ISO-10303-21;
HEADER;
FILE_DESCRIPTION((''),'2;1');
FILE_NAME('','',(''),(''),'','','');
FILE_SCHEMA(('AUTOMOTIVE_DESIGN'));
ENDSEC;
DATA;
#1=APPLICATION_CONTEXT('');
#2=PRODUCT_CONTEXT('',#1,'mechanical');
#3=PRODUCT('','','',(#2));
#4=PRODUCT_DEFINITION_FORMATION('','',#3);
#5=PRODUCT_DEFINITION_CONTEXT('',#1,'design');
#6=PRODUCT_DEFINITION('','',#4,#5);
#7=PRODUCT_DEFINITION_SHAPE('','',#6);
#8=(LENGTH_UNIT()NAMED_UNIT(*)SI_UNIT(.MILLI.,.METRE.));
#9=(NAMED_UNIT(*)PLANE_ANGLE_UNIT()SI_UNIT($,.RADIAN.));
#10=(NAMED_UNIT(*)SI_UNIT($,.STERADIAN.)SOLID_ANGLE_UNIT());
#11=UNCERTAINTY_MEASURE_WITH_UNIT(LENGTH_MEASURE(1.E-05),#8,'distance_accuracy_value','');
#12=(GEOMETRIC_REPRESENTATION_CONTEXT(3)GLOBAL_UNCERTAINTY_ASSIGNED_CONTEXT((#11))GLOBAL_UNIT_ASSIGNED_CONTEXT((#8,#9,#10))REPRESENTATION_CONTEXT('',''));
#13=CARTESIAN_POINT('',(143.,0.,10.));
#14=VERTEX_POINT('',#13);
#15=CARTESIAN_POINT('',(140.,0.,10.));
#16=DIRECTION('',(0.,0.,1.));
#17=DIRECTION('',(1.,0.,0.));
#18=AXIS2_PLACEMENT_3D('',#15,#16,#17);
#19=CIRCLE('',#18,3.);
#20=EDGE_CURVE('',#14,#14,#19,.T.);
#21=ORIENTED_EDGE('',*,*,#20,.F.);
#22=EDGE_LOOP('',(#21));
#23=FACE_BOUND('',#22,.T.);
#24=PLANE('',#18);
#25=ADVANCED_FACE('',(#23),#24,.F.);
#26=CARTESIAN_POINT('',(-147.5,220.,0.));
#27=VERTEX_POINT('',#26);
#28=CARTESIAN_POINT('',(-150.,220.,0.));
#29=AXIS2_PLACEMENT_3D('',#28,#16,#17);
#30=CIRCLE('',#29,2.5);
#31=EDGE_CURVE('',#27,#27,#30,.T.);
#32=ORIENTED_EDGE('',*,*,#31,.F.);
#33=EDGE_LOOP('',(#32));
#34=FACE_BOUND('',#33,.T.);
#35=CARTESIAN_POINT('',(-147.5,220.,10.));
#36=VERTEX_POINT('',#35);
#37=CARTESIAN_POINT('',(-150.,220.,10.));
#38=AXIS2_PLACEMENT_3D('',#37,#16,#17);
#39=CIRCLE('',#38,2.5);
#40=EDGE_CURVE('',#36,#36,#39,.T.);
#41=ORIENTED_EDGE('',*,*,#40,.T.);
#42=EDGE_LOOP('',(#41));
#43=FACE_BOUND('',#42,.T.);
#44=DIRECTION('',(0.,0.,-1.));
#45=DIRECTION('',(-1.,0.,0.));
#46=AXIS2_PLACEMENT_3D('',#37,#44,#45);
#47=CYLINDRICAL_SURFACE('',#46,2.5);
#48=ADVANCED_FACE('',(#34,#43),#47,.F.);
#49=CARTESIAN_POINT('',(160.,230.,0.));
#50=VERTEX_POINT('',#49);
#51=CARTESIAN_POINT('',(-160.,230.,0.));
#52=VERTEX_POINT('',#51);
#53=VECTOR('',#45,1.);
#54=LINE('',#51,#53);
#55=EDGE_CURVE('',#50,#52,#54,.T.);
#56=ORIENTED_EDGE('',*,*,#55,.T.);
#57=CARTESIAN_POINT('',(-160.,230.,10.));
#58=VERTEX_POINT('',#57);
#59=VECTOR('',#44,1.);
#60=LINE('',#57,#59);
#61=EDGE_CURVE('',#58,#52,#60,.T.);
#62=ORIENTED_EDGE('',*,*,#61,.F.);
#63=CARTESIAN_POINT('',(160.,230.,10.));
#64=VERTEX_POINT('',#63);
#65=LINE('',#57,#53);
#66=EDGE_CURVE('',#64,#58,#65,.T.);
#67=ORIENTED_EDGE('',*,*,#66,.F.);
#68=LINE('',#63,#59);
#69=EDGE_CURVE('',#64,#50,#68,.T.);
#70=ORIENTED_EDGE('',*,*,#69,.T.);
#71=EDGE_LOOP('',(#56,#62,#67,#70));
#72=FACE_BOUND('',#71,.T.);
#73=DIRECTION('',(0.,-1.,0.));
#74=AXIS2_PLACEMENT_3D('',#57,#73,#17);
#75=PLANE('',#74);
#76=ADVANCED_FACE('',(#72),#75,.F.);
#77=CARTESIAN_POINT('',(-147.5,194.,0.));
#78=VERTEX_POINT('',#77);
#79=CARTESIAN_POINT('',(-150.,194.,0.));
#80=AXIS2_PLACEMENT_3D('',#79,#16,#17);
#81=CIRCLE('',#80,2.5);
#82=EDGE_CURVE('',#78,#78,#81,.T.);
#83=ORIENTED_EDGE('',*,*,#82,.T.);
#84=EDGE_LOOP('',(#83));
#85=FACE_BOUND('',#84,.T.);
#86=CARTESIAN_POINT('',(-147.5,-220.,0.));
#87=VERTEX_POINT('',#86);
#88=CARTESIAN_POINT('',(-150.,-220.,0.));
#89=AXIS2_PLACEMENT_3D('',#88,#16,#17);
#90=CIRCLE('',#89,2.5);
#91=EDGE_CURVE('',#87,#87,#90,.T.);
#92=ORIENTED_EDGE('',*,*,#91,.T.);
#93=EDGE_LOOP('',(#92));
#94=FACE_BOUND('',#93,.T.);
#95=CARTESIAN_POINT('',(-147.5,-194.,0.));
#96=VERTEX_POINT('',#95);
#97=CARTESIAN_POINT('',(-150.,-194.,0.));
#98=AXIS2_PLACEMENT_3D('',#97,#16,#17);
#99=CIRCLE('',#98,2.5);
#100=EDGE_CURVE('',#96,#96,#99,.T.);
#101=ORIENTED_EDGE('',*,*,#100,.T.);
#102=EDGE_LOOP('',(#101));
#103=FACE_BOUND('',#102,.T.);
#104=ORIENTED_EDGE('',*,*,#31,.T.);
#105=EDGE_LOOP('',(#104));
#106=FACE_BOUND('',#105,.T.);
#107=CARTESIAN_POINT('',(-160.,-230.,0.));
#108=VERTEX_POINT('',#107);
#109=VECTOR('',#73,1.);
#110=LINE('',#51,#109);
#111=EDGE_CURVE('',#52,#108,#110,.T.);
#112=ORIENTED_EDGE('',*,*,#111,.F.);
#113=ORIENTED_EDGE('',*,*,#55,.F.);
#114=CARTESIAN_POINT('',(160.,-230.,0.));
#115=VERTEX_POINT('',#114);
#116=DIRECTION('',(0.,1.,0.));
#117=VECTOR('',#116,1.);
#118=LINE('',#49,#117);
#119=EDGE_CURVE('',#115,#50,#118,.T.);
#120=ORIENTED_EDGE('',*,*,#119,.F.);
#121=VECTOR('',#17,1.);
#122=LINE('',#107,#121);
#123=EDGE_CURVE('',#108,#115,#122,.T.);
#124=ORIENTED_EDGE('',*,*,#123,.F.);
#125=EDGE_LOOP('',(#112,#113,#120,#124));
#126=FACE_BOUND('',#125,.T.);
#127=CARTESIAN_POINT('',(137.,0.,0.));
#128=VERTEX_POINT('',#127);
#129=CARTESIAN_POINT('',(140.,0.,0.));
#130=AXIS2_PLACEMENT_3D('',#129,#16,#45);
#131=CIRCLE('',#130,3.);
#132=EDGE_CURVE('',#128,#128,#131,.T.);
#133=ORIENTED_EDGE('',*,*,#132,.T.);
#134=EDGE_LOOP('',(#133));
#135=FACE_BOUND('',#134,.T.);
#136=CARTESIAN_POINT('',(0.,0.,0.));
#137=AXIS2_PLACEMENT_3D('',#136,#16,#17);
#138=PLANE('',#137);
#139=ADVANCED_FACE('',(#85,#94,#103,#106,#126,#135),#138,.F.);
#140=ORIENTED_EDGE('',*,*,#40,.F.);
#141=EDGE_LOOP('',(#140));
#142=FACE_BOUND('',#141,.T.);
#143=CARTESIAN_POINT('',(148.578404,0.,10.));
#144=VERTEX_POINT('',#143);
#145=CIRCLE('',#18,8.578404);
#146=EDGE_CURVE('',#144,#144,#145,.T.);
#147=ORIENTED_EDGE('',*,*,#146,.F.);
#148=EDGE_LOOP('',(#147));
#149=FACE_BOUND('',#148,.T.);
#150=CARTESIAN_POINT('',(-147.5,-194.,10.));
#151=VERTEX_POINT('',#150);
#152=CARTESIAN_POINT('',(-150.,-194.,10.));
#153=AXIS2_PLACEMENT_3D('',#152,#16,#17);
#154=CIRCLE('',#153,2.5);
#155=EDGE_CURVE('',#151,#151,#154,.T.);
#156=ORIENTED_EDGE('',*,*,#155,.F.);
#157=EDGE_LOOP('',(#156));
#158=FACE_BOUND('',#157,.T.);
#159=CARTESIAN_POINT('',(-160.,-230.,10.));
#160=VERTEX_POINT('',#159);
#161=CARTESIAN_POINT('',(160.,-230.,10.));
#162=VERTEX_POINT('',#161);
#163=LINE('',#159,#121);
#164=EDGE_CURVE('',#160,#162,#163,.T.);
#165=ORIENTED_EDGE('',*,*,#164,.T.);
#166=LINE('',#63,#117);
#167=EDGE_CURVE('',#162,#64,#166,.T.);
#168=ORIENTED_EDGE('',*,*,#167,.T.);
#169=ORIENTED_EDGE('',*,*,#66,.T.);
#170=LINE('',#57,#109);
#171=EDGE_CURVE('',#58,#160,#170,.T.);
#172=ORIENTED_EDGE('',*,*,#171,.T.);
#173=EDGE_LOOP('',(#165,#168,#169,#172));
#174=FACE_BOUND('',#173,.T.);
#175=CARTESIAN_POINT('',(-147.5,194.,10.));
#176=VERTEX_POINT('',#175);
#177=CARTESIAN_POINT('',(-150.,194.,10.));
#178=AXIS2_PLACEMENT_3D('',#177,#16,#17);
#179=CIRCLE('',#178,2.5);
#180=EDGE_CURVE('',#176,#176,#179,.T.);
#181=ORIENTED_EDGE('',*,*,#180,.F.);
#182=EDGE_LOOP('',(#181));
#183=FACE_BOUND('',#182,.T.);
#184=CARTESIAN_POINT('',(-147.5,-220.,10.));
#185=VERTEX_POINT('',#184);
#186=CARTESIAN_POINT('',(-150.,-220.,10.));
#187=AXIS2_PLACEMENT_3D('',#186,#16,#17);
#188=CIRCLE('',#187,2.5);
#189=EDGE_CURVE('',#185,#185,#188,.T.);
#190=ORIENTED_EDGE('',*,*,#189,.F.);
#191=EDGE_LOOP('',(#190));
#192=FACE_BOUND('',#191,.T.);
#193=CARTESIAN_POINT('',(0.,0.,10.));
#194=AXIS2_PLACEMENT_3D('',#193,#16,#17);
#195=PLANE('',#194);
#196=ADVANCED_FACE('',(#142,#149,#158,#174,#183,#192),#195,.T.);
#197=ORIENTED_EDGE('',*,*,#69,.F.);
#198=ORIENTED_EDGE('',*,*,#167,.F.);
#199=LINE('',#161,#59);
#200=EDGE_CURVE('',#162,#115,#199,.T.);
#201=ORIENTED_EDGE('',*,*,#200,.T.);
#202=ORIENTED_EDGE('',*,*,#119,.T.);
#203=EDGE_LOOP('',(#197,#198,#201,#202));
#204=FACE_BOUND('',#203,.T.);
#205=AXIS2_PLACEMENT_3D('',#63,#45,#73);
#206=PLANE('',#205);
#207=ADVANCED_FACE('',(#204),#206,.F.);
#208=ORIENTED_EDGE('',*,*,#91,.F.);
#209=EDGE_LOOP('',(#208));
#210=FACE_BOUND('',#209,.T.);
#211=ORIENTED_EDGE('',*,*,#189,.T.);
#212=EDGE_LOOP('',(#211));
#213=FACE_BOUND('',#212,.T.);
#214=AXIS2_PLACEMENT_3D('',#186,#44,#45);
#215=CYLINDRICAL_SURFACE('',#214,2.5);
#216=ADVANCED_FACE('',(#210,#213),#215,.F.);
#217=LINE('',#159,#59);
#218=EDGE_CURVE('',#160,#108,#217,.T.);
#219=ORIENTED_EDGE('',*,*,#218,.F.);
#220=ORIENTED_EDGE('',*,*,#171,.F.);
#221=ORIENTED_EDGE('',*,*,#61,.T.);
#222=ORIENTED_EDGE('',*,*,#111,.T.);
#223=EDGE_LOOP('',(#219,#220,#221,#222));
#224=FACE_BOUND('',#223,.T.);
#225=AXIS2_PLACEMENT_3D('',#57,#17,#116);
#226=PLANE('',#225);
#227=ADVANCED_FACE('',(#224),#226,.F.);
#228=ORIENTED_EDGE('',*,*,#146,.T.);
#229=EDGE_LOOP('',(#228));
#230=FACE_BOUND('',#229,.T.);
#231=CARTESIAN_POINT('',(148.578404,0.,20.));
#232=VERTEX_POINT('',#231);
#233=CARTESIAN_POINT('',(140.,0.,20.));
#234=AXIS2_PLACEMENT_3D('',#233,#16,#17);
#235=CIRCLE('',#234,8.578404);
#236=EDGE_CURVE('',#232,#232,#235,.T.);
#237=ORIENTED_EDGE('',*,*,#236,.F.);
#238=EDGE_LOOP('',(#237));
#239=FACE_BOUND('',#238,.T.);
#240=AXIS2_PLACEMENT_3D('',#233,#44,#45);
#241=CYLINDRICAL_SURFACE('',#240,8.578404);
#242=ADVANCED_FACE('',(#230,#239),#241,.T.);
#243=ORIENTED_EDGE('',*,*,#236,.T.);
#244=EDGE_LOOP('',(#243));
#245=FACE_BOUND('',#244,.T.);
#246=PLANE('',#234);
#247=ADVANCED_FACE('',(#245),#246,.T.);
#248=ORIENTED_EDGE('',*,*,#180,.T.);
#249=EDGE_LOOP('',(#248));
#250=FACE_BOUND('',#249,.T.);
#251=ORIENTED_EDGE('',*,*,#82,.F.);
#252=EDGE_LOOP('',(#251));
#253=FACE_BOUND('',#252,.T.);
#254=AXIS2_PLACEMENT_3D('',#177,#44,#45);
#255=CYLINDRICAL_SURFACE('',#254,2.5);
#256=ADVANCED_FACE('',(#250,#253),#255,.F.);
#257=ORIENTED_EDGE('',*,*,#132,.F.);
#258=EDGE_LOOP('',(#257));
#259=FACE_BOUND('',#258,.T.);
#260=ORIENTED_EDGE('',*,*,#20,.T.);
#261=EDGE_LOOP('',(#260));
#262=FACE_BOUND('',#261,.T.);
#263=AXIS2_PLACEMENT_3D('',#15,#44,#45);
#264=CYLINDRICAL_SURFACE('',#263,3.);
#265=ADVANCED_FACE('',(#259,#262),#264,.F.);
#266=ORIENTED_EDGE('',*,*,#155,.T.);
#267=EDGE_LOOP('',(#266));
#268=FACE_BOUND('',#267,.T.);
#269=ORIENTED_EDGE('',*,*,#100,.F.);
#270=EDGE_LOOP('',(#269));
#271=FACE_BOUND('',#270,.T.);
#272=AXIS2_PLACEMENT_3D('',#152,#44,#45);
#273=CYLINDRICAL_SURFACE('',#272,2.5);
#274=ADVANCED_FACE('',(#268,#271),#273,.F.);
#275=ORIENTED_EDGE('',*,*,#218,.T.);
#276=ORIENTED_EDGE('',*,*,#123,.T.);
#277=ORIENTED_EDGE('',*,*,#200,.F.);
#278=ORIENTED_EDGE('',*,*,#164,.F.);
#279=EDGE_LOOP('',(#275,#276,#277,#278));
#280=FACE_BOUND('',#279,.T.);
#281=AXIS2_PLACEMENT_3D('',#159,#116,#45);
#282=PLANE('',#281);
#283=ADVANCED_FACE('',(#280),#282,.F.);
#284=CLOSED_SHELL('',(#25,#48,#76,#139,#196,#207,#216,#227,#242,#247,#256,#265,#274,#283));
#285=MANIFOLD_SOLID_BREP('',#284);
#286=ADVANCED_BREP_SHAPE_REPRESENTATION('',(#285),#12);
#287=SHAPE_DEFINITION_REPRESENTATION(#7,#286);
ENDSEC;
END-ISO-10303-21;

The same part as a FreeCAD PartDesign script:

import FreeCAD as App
import Part
import Sketcher

V = App.Vector

doc = App.newDocument("Part")
params = doc.addObject("Spreadsheet::Sheet", "Params")
for row, (alias, value) in enumerate([
    ("sketch1_diameter", "5 mm"),
    ("sketch1_diameter2", "6 mm"),
    ("sketch1_width", "320 mm"),
    ("sketch1_height", "460 mm"),
    ("pad1_length", "10 mm"),
    ("pad2_length", "10 mm"),
], start=1):
    params.set(f"A{row}", alias)
    params.set(f"B{row}", "=" + value)
    params.setAlias(f"B{row}", alias)

body = doc.addObject("PartDesign::Body", "Body")

sketch1 = body.newObject("Sketcher::SketchObject", "Sketch")
sketch1.AttachmentSupport = (doc.getObject("XY_Plane"), [""])
sketch1.MapMode = "FlatFace"
sketch1.addGeometry(Part.LineSegment(V(-160, 230, 0), V(-160, -230, 0)), False)
sketch1.addGeometry(Part.LineSegment(V(-160, -230, 0), V(160, -230, 0)), False)
sketch1.addGeometry(Part.LineSegment(V(160, -230, 0), V(160, 230, 0)), False)
sketch1.addGeometry(Part.LineSegment(V(160, 230, 0), V(-160, 230, 0)), False)
sketch1.addGeometry(Part.Circle(V(-150, -220, 0), V(0, 0, 1), 2.5), False)
sketch1.addGeometry(Part.Circle(V(-150, -194, 0), V(0, 0, 1), 2.5), False)
sketch1.addGeometry(Part.Circle(V(-150, 194, 0), V(0, 0, 1), 2.5), False)
sketch1.addGeometry(Part.Circle(V(-150, 220, 0), V(0, 0, 1), 2.5), False)
sketch1.addGeometry(Part.Circle(V(140, 0, 0), V(0, 0, 1), 3), False)
sketch1.addConstraint(Sketcher.Constraint("Coincident", 0, 2, 1, 1))
sketch1.addConstraint(Sketcher.Constraint("Coincident", 1, 2, 2, 1))
sketch1.addConstraint(Sketcher.Constraint("Coincident", 2, 2, 3, 1))
sketch1.addConstraint(Sketcher.Constraint("Coincident", 3, 2, 0, 1))
sketch1.addConstraint(Sketcher.Constraint("Vertical", 0))
sketch1.addConstraint(Sketcher.Constraint("Horizontal", 1))
sketch1.addConstraint(Sketcher.Constraint("Vertical", 2))
sketch1.addConstraint(Sketcher.Constraint("Horizontal", 3))
sketch1.addConstraint(Sketcher.Constraint("Equal", 4, 5))
sketch1.addConstraint(Sketcher.Constraint("Equal", 5, 6))
sketch1.addConstraint(Sketcher.Constraint("Equal", 6, 7))
sketch1.addConstraint(Sketcher.Constraint("Symmetric", 0, 2, 2, 2, -1, 1))
sketch1.addConstraint(Sketcher.Constraint("Symmetric", 5, 3, 6, 3, -1))
sketch1.addConstraint(Sketcher.Constraint("Symmetric", 4, 3, 7, 3, -1))
sketch1.addConstraint(Sketcher.Constraint("PointOnObject", 8, 3, -1))
sketch1.addConstraint(Sketcher.Constraint("Vertical", 4, 3, 5, 3))
sketch1.addConstraint(Sketcher.Constraint("Diameter", 4, 5.0))
sketch1.addConstraint(Sketcher.Constraint("Diameter", 8, 6.0))
sketch1.addConstraint(Sketcher.Constraint("DistanceX", 1, 1, 1, 2, 320.0))
sketch1.addConstraint(Sketcher.Constraint("DistanceY", 0, 2, 0, 1, 460.0))
sketch1.addConstraint(Sketcher.Constraint("DistanceX", 4, 3, -1, 1, 150.0))
sketch1.addConstraint(Sketcher.Constraint("DistanceY", 4, 3, -1, 1, 220.0))
sketch1.addConstraint(Sketcher.Constraint("DistanceY", 5, 3, -1, 1, 194.0))
sketch1.addConstraint(Sketcher.Constraint("DistanceX", -1, 1, 8, 3, 140.0))
sketch1.setExpression("Constraints[16]", "Params.sketch1_diameter")
sketch1.setExpression("Constraints[17]", "Params.sketch1_diameter2")
sketch1.setExpression("Constraints[18]", "Params.sketch1_width")
sketch1.setExpression("Constraints[19]", "Params.sketch1_height")
pad1 = body.newObject("PartDesign::Pad", "Pad")
pad1.Profile = sketch1
pad1.setExpression("Length", "Params.pad1_length")

sketch2 = body.newObject("Sketcher::SketchObject", "Sketch001")
sketch2.AttachmentSupport = (doc.getObject("XY_Plane"), [""])
sketch2.MapMode = "FlatFace"
sketch2.AttachmentOffset = App.Placement(V(0, 0, 10), App.Rotation())
sketch2.addGeometry(Part.Circle(V(140, 0, 0), V(0, 0, 1), 9), False)
sketch2.addConstraint(Sketcher.Constraint("PointOnObject", 0, 3, -1))
sketch2.addConstraint(Sketcher.Constraint("DistanceX", -1, 1, 0, 3, 140.0))
sketch2.addConstraint(Sketcher.Constraint("Diameter", 0, 17.156807))
pad2 = body.newObject("PartDesign::Pad", "Pad001")
pad2.Profile = sketch2
pad2.setExpression("Length", "Params.pad2_length")

doc.recompute()
